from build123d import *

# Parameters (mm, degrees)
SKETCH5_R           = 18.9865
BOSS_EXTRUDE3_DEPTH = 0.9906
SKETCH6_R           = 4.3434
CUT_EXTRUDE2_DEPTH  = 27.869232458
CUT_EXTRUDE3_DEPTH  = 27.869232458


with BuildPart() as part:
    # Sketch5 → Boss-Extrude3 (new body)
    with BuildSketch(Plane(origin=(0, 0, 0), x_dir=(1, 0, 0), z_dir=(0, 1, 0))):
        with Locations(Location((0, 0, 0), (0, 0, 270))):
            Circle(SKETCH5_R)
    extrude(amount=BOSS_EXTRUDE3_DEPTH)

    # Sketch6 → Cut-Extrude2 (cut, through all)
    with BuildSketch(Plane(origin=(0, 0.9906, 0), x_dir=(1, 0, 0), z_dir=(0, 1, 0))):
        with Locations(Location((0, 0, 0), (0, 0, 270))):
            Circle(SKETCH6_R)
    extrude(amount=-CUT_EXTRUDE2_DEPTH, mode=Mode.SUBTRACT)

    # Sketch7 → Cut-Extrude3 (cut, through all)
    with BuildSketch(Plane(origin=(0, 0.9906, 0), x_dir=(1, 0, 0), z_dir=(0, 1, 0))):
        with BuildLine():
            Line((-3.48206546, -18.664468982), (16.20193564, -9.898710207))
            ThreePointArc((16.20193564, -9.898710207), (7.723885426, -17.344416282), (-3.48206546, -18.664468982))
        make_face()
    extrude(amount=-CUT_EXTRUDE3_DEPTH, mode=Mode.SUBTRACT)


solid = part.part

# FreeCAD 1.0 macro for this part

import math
import FreeCAD as App
import Part
import Sketcher
Q = App.Units.Quantity

doc = App.newDocument("Part")
body = doc.addObject("PartDesign::Body", "Body")

sketch1 = body.newObject("Sketcher::SketchObject", "Sketch")
sketch1.AttachmentSupport = (doc.getObject("XZ_Plane"), [""])
sketch1.MapMode = "FlatFace"
sketch1.addGeometry(Part.Circle(App.Vector(0, 0, 0), App.Vector(0, 0, 1), 18.9865), False)
sketch1.addConstraint(Sketcher.Constraint("Coincident", 0, 3, -1, 1))
sketch1.addConstraint(Sketcher.Constraint("Diameter", 0, Q("1.495 in")))
pad1 = body.newObject("PartDesign::Pad", "Pad")
pad1.Profile = sketch1
pad1.Length = Q("0.039 in")
pad1.Reversed = True

sketch2 = body.newObject("Sketcher::SketchObject", "Sketch001")
sketch2.AttachmentSupport = (doc.getObject("XZ_Plane"), [""])
sketch2.MapMode = "FlatFace"
sketch2.AttachmentOffset = App.Placement(App.Vector(0, 0, -0.039 * 25.4), App.Rotation())
sketch2.addGeometry(Part.Circle(App.Vector(0, 0, 0), App.Vector(0, 0, 1), 4.3434), False)
sketch2.addConstraint(Sketcher.Constraint("Coincident", 0, 3, -1, 1))
sketch2.addConstraint(Sketcher.Constraint("Diameter", 0, Q("0.342 in")))
pocket1 = body.newObject("PartDesign::Pocket", "Pocket")
pocket1.Profile = sketch2
pocket1.Type = "ThroughAll"
pocket1.Reversed = True

sketch3 = body.newObject("Sketcher::SketchObject", "Sketch002")
sketch3.AttachmentSupport = (doc.getObject("XZ_Plane"), [""])
sketch3.MapMode = "FlatFace"
sketch3.AttachmentOffset = App.Placement(App.Vector(0, 0, -0.039 * 25.4), App.Rotation())
sketch3.addGeometry(Part.LineSegment(App.Vector(16.201936, 9.89871, 0), App.Vector(-3.482065, 18.664469, 0)), False)
sketch3.addGeometry(Part.ArcOfCircle(Part.Circle(App.Vector(0, 0, 0), App.Vector(0, 0, 1), 18.9865), math.radians(31.423199), math.radians(100.567683)), False)
sketch3.addConstraint(Sketcher.Constraint("Coincident", 0, 1, 1, 1))
sketch3.addConstraint(Sketcher.Constraint("Coincident", 1, 2, 0, 2))
sketch3.addConstraint(Sketcher.Constraint("Coincident", 1, 3, -1, 1))
sketch3.addConstraint(Sketcher.Constraint("Radius", 1, Q("0.7475 in")))
sketch3.addConstraint(Sketcher.Constraint("DistanceX", 1, 2, 0, 1, Q("19.684001 mm")))
sketch3.addConstraint(Sketcher.Constraint("DistanceY", -1, 1, 0, 1, Q("9.89871 mm")))
pocket2 = body.newObject("PartDesign::Pocket", "Pocket001")
pocket2.Profile = sketch3
pocket2.Type = "ThroughAll"
pocket2.Reversed = True

doc.recompute()
